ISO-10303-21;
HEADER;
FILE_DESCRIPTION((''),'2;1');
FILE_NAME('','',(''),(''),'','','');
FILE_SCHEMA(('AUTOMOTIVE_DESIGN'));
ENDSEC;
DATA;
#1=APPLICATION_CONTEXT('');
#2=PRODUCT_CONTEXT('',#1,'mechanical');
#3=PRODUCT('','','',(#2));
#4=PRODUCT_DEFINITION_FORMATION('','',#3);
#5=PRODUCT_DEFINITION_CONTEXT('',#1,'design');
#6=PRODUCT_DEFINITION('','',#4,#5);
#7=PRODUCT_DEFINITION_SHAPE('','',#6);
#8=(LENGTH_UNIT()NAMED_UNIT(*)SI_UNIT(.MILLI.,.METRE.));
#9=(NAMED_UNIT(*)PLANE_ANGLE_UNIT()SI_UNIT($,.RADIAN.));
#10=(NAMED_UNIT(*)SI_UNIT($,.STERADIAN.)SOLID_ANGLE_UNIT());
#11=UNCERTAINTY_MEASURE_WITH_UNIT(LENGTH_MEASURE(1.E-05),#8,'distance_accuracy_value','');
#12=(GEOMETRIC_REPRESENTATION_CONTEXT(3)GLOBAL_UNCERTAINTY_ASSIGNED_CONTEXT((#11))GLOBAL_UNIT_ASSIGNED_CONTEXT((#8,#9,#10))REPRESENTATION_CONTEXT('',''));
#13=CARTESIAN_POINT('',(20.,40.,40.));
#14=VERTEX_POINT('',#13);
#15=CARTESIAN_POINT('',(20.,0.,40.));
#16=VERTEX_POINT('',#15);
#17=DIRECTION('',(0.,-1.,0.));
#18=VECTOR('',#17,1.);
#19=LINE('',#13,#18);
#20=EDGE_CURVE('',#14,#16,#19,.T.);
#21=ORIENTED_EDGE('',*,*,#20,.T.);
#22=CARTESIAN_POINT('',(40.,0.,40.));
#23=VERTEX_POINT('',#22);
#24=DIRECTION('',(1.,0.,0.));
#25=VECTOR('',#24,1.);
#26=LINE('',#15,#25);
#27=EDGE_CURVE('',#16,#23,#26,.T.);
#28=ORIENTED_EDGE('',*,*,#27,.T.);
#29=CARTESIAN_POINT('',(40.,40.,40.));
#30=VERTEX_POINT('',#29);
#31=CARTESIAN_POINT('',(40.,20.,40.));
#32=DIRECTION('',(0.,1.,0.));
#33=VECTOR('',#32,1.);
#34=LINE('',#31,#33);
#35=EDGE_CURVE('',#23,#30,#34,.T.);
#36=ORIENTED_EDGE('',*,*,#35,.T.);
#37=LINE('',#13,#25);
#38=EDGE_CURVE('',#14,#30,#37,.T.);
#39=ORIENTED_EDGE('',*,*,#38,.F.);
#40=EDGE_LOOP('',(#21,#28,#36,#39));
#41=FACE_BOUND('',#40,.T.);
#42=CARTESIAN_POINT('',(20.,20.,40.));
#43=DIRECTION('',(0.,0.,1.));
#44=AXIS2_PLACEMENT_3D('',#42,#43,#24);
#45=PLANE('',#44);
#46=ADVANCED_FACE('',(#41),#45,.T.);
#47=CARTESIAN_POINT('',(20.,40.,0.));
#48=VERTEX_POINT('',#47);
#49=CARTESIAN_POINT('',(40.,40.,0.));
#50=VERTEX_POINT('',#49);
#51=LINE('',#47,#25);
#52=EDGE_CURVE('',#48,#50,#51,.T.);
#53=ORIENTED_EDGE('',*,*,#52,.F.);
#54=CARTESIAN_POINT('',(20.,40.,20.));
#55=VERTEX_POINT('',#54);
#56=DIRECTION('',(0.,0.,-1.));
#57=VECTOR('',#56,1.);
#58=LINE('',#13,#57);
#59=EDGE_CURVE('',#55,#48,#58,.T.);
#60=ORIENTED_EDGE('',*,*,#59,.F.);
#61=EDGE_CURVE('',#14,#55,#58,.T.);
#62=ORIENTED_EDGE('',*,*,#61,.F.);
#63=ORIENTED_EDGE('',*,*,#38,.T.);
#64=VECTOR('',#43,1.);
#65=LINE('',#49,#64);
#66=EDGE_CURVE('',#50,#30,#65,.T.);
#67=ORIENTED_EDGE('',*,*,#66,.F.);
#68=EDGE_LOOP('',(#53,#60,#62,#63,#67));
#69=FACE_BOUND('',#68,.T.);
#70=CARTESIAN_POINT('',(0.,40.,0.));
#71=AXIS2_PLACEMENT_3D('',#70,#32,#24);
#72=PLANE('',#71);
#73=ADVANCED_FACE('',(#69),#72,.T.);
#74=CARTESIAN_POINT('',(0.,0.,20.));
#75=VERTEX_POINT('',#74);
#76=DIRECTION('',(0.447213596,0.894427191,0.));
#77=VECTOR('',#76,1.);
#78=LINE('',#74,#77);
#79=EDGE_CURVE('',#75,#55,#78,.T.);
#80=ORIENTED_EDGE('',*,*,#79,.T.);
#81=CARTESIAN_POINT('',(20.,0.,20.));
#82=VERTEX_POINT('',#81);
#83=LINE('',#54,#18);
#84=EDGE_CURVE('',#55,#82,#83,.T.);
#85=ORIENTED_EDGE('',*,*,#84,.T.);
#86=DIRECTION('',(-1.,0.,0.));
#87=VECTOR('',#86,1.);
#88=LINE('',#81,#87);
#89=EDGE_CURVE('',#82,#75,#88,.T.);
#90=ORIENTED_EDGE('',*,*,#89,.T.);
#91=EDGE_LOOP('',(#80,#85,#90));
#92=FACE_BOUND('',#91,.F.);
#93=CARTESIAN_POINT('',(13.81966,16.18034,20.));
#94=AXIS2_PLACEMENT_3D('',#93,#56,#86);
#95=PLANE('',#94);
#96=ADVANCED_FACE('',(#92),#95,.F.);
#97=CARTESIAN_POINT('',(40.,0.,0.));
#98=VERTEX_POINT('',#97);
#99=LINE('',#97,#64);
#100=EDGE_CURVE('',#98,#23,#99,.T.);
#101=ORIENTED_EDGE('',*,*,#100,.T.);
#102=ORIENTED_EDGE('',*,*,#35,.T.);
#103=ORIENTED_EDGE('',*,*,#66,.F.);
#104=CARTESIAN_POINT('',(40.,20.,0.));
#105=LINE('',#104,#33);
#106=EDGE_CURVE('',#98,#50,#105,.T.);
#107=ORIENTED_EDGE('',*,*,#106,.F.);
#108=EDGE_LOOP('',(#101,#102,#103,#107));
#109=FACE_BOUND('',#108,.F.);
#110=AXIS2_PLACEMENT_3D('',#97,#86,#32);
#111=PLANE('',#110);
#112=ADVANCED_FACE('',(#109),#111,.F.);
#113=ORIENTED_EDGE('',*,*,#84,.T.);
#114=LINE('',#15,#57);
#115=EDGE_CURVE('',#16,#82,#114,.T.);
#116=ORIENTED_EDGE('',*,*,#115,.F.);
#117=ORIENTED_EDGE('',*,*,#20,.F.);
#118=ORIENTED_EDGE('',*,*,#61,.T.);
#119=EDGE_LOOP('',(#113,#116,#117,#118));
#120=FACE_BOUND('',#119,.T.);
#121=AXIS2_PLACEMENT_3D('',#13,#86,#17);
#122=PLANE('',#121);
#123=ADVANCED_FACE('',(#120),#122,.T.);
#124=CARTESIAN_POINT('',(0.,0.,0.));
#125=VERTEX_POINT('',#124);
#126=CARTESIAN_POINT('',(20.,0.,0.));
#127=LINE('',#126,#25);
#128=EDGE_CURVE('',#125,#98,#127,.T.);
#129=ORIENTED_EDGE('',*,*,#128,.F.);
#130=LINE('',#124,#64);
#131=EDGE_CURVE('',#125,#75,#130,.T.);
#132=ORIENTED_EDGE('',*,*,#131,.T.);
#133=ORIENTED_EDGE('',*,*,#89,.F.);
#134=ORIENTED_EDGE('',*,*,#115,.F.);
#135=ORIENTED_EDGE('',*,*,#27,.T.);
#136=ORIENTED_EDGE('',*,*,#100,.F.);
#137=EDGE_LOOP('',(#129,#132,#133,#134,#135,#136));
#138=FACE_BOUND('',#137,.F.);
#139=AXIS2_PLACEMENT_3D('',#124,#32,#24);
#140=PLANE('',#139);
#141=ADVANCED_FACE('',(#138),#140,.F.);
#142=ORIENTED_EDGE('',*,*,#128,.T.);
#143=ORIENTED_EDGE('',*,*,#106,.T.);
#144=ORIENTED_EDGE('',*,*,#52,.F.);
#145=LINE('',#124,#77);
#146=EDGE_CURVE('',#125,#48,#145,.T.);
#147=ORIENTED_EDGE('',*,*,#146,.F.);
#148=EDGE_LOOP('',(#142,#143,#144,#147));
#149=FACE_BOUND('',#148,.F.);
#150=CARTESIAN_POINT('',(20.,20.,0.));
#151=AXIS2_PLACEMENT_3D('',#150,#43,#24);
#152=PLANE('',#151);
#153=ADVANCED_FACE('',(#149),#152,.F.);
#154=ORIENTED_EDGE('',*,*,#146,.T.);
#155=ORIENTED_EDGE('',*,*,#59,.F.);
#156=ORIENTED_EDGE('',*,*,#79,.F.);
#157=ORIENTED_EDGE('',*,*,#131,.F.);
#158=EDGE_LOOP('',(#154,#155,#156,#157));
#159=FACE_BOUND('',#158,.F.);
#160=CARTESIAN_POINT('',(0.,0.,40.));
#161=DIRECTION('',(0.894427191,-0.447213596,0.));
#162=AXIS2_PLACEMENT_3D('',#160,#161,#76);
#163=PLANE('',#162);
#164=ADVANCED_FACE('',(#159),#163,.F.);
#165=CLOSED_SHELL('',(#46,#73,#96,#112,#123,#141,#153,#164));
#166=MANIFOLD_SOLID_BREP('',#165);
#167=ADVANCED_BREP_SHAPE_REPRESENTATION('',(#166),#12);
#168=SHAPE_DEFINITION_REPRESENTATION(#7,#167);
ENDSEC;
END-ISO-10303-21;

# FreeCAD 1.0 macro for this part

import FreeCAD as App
import Part
import Sketcher

V = App.Vector


def add_polygon(sketch, points):
    """Adds a closed chain of lines whose ends are joined by coincident constraints."""
    first, n = sketch.GeometryCount, len(points)
    for a, b in zip(points, points[1:] + points[:1]):
        sketch.addGeometry(Part.LineSegment(App.Vector(*a, 0), App.Vector(*b, 0)), False)
    for i in range(n):
        sketch.addConstraint(Sketcher.Constraint("Coincident", first + i, 2, first + (i + 1) % n, 1))

doc = App.newDocument("Part")
body = doc.addObject("PartDesign::Body", "Body")

# Sketch on XY plane
sketch1 = body.newObject("Sketcher::SketchObject", "Sketch")
sketch1.AttachmentSupport = (doc.getObject("XY_Plane"), [""])
sketch1.MapMode = "FlatFace"
add_polygon(sketch1, [(0, 40), (0, 0), (40, 0), (40, 40)])  # lines 0-3
sketch1.addConstraint(Sketcher.Constraint("Vertical", 0))
sketch1.addConstraint(Sketcher.Constraint("Horizontal", 1))
sketch1.addConstraint(Sketcher.Constraint("Vertical", 2))
sketch1.addConstraint(Sketcher.Constraint("Horizontal", 3))
sketch1.addConstraint(Sketcher.Constraint("Coincident", 0, 2, -1, 1))
sketch1.addConstraint(Sketcher.Constraint("Equal", 3, 0))
sketch1.addConstraint(Sketcher.Constraint("DistanceX", 1, 1, 1, 2, 40.0))
pad1 = body.newObject("PartDesign::Pad", "Pad")
pad1.Profile = sketch1
pad1.Length = 40

# Sketch on XY plane
sketch2 = body.newObject("Sketcher::SketchObject", "Sketch001")
sketch2.AttachmentSupport = (doc.getObject("XY_Plane"), [""])
sketch2.MapMode = "FlatFace"
sketch2.AttachmentOffset = App.Placement(V(0, 0, 40), App.Rotation())
add_polygon(sketch2, [(0, 0), (20, 40), (0, 40)])  # lines 0-2
sketch2.addConstraint(Sketcher.Constraint("Horizontal", 1))
sketch2.addConstraint(Sketcher.Constraint("Vertical", 2))
sketch2.addConstraint(Sketcher.Constraint("Coincident", 2, 2, -1, 1))
sketch2.addConstraint(Sketcher.Constraint("DistanceX", 1, 2, 1, 1, 20.0))
sketch2.addConstraint(Sketcher.Constraint("DistanceY", 2, 2, 2, 1, 40.0))
pocket1 = body.newObject("PartDesign::Pocket", "Pocket")
pocket1.Profile = sketch2
pocket1.Length = 40

# Sketch on XY plane
sketch3 = body.newObject("Sketcher::SketchObject", "Sketch002")
sketch3.AttachmentSupport = (doc.getObject("XY_Plane"), [""])
sketch3.MapMode = "FlatFace"
sketch3.AttachmentOffset = App.Placement(V(0, 0, 40), App.Rotation())
add_polygon(sketch3, [(20, 0), (20, 40), (0, 0)])  # lines 0-2
sketch3.addConstraint(Sketcher.Constraint("Vertical", 0))
sketch3.addConstraint(Sketcher.Constraint("Horizontal", 2))
sketch3.addConstraint(Sketcher.Constraint("Coincident", 1, 2, -1, 1))
sketch3.addConstraint(Sketcher.Constraint("DistanceX", 2, 1, 2, 2, 20.0))
sketch3.addConstraint(Sketcher.Constraint("DistanceY", 0, 1, 0, 2, 40.0))
pocket2 = body.newObject("PartDesign::Pocket", "Pocket001")
pocket2.Profile = sketch3
pocket2.Length = 20

doc.recompute()
